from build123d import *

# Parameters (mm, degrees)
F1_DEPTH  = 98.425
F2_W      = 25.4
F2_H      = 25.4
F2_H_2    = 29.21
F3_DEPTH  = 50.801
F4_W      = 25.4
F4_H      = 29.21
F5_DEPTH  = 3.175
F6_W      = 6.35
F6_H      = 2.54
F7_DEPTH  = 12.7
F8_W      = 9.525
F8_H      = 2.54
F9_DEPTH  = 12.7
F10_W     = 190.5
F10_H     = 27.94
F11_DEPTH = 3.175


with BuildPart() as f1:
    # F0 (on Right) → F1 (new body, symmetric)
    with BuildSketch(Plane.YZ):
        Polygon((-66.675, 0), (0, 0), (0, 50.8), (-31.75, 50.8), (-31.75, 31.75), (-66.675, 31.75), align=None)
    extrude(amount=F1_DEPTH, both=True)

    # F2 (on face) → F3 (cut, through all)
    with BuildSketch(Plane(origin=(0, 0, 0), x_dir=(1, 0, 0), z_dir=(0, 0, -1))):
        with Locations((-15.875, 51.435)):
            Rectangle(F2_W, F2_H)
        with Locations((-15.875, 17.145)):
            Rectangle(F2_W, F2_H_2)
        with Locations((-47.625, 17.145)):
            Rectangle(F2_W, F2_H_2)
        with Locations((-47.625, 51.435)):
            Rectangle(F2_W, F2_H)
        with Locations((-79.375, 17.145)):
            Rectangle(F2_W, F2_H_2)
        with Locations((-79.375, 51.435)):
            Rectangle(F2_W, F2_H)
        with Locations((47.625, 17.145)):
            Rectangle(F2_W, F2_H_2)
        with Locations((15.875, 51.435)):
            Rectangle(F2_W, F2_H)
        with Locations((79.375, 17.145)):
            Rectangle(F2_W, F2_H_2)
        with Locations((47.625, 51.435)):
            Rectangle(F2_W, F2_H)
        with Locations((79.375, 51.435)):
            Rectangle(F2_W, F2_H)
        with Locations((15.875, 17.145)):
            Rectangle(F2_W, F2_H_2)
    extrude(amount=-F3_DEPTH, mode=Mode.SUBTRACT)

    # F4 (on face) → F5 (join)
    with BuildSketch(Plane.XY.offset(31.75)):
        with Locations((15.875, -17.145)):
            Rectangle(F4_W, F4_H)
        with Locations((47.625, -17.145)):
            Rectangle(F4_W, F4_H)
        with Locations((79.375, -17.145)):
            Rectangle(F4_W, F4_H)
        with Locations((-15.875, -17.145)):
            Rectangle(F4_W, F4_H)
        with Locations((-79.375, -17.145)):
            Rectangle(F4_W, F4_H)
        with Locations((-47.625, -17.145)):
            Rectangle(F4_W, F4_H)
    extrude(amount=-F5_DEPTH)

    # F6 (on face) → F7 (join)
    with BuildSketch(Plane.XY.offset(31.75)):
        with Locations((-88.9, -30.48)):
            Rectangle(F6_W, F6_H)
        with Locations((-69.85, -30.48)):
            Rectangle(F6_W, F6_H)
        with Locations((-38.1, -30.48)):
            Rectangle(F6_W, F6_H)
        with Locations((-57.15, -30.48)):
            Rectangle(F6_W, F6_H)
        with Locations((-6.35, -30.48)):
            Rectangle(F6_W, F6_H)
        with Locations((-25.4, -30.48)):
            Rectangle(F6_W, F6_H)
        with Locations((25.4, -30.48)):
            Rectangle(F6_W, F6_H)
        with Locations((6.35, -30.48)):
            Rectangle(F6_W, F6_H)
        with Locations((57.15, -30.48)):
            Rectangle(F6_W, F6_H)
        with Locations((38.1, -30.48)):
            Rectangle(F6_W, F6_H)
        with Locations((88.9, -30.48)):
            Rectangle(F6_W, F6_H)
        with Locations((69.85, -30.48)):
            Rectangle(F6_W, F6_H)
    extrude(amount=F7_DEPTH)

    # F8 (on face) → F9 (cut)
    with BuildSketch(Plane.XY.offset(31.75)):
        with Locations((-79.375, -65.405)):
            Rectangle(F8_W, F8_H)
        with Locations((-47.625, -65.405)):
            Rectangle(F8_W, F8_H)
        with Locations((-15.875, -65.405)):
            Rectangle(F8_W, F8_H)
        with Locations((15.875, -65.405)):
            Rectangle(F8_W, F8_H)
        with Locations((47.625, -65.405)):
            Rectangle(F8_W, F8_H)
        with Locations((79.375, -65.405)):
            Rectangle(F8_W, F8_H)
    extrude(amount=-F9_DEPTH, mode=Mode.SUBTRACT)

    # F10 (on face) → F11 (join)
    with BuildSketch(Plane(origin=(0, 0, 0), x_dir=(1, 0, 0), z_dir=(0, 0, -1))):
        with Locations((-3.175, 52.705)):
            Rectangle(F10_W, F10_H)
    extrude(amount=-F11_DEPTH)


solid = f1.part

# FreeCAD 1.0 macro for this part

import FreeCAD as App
import Part
import Sketcher
Q = App.Units.Quantity


def add_polygon(sketch, points):
    """Adds a closed chain of lines whose ends are joined by coincident constraints."""
    first, n = sketch.GeometryCount, len(points)
    for a, b in zip(points, points[1:] + points[:1]):
        sketch.addGeometry(Part.LineSegment(App.Vector(*a, 0), App.Vector(*b, 0)), False)
    for i in range(n):
        sketch.addConstraint(Sketcher.Constraint("Coincident", first + i, 2, first + (i + 1) % n, 1))

doc = App.newDocument("Part")
body = doc.addObject("PartDesign::Body", "Body")

# Sketch on YZ plane
sketch1 = doc.addObject("Sketcher::SketchObject", "Sketch")
body.addObject(sketch1)
sketch1.AttachmentSupport = (doc.YZ_Plane, [""])
sketch1.MapMode = "FlatFace"
add_polygon(sketch1, [(-67, 0), (0, 0), (0, 51), (-32, 51), (-32, 32), (-67, 32)])  # lines 0-5
sketch1.addConstraint(Sketcher.Constraint("Horizontal", 0))
sketch1.addConstraint(Sketcher.Constraint("Vertical", 1))
sketch1.addConstraint(Sketcher.Constraint("Horizontal", 2))
sketch1.addConstraint(Sketcher.Constraint("Vertical", 3))
sketch1.addConstraint(Sketcher.Constraint("Horizontal", 4))
sketch1.addConstraint(Sketcher.Constraint("Vertical", 5))
sketch1.addConstraint(Sketcher.Constraint("Coincident", 0, 2, -1, 1))
sketch1.addConstraint(Sketcher.Constraint("Equal", 2, 5))
sketch1.addConstraint(Sketcher.Constraint("DistanceY", 1, 1, 1, 2, Q("2 in")))
sketch1.addConstraint(Sketcher.Constraint("DistanceX", 2, 2, 2, 1, Q("1.25 in")))
sketch1.addConstraint(Sketcher.Constraint("DistanceX", 0, 1, 0, 2, Q("2.625 in")))
pad1 = doc.addObject("PartDesign::Pad", "Pad")
body.addObject(pad1)
pad1.Profile = sketch1
pad1.Length = Q("7.75 in")
pad1.Midplane = True

# Sketch on XY plane
sketch2 = doc.addObject("Sketcher::SketchObject", "Sketch001")
body.addObject(sketch2)
sketch2.AttachmentSupport = (doc.XY_Plane, [""])
sketch2.MapMode = "FlatFace"
add_polygon(sketch2, [(-29, -64), (-29, -39), (-3, -39), (-3, -64)])  # lines 0-3
add_polygon(sketch2, [(-29, -32), (-29, -3), (-3, -3), (-3, -32)])  # lines 4-7
add_polygon(sketch2, [(-60, -32), (-60, -3), (-35, -3), (-35, -32)])  # lines 8-11
add_polygon(sketch2, [(-60, -64), (-60, -39), (-35, -39), (-35, -64)])  # lines 12-15
add_polygon(sketch2, [(-92, -32), (-92, -3), (-67, -3), (-67, -32)])  # lines 16-19
add_polygon(sketch2, [(-92, -64), (-92, -39), (-67, -39), (-67, -64)])  # lines 20-23
add_polygon(sketch2, [(35, -32), (35, -3), (60, -3), (60, -32)])  # lines 24-27
add_polygon(sketch2, [(3, -64), (3, -39), (29, -39), (29, -64)])  # lines 28-31
add_polygon(sketch2, [(67, -32), (67, -3), (92, -3), (92, -32)])  # lines 32-35
add_polygon(sketch2, [(35, -64), (35, -39), (60, -39), (60, -64)])  # lines 36-39
add_polygon(sketch2, [(67, -64), (67, -39), (92, -39), (92, -64)])  # lines 40-43
add_polygon(sketch2, [(3, -32), (3, -3), (29, -3), (29, -32)])  # lines 44-47
sketch2.addConstraint(Sketcher.Constraint("Vertical", 0))
sketch2.addConstraint(Sketcher.Constraint("Horizontal", 1))
sketch2.addConstraint(Sketcher.Constraint("Vertical", 2))
sketch2.addConstraint(Sketcher.Constraint("Horizontal", 3))
sketch2.addConstraint(Sketcher.Constraint("Vertical", 4))
sketch2.addConstraint(Sketcher.Constraint("Horizontal", 5))
sketch2.addConstraint(Sketcher.Constraint("Vertical", 6))
sketch2.addConstraint(Sketcher.Constraint("Horizontal", 7))
sketch2.addConstraint(Sketcher.Constraint("Vertical", 8))
sketch2.addConstraint(Sketcher.Constraint("Horizontal", 9))
sketch2.addConstraint(Sketcher.Constraint("Vertical", 10))
sketch2.addConstraint(Sketcher.Constraint("Horizontal", 11))
sketch2.addConstraint(Sketcher.Constraint("Vertical", 12))
sketch2.addConstraint(Sketcher.Constraint("Horizontal", 13))
sketch2.addConstraint(Sketcher.Constraint("Vertical", 14))
sketch2.addConstraint(Sketcher.Constraint("Horizontal", 15))
sketch2.addConstraint(Sketcher.Constraint("Vertical", 16))
sketch2.addConstraint(Sketcher.Constraint("Horizontal", 17))
sketch2.addConstraint(Sketcher.Constraint("Vertical", 18))
sketch2.addConstraint(Sketcher.Constraint("Horizontal", 19))
sketch2.addConstraint(Sketcher.Constraint("Vertical", 20))
sketch2.addConstraint(Sketcher.Constraint("Horizontal", 21))
sketch2.addConstraint(Sketcher.Constraint("Vertical", 22))
sketch2.addConstraint(Sketcher.Constraint("Horizontal", 23))
sketch2.addConstraint(Sketcher.Constraint("Vertical", 24))
sketch2.addConstraint(Sketcher.Constraint("Horizontal", 25))
sketch2.addConstraint(Sketcher.Constraint("Vertical", 26))
sketch2.addConstraint(Sketcher.Constraint("Horizontal", 27))
sketch2.addConstraint(Sketcher.Constraint("Vertical", 28))
sketch2.addConstraint(Sketcher.Constraint("Horizontal", 29))
sketch2.addConstraint(Sketcher.Constraint("Vertical", 30))
sketch2.addConstraint(Sketcher.Constraint("Horizontal", 31))
sketch2.addConstraint(Sketcher.Constraint("Vertical", 32))
sketch2.addConstraint(Sketcher.Constraint("Horizontal", 33))
sketch2.addConstraint(Sketcher.Constraint("Vertical", 34))
sketch2.addConstraint(Sketcher.Constraint("Horizontal", 35))
sketch2.addConstraint(Sketcher.Constraint("Vertical", 36))
sketch2.addConstraint(Sketcher.Constraint("Horizontal", 37))
sketch2.addConstraint(Sketcher.Constraint("Vertical", 38))
sketch2.addConstraint(Sketcher.Constraint("Horizontal", 39))
sketch2.addConstraint(Sketcher.Constraint("Vertical", 40))
sketch2.addConstraint(Sketcher.Constraint("Horizontal", 41))
sketch2.addConstraint(Sketcher.Constraint("Vertical", 42))
sketch2.addConstraint(Sketcher.Constraint("Horizontal", 43))
sketch2.addConstraint(Sketcher.Constraint("Vertical", 44))
sketch2.addConstraint(Sketcher.Constraint("Horizontal", 45))
sketch2.addConstraint(Sketcher.Constraint("Vertical", 46))
sketch2.addConstraint(Sketcher.Constraint("Horizontal", 47))
sketch2.addConstraint(Sketcher.Constraint("Symmetric", 9, 2, 24, 2, -2))
sketch2.addConstraint(Sketcher.Constraint("Symmetric", 11, 2, 26, 2, -2))
sketch2.addConstraint(Sketcher.Constraint("Symmetric", 1, 2, 28, 2, -2))
sketch2.addConstraint(Sketcher.Constraint("Symmetric", 3, 2, 30, 2, -2))
sketch2.addConstraint(Sketcher.Constraint("Symmetric", 17, 2, 32, 2, -2))
sketch2.addConstraint(Sketcher.Constraint("Symmetric", 19, 2, 34, 2, -2))
sketch2.addConstraint(Sketcher.Constraint("Symmetric", 13, 2, 36, 2, -2))
sketch2.addConstraint(Sketcher.Constraint("Symmetric", 15, 2, 38, 2, -2))
sketch2.addConstraint(Sketcher.Constraint("Symmetric", 21, 2, 40, 2, -2))
sketch2.addConstraint(Sketcher.Constraint("Symmetric", 23, 2, 42, 2, -2))
sketch2.addConstraint(Sketcher.Constraint("Symmetric", 5, 2, 44, 2, -2))
sketch2.addConstraint(Sketcher.Constraint("Symmetric", 7, 2, 46, 2, -2))
sketch2.addConstraint(Sketcher.Constraint("Horizontal", 5, 2, 8, 2))
sketch2.addConstraint(Sketcher.Constraint("Horizontal", 7, 2, 10, 2))
sketch2.addConstraint(Sketcher.Constraint("Horizontal", 1, 2, 12, 2))
sketch2.addConstraint(Sketcher.Constraint("Horizontal", 3, 2, 14, 2))
sketch2.addConstraint(Sketcher.Constraint("Horizontal", 9, 2, 16, 2))
sketch2.addConstraint(Sketcher.Constraint("Horizontal", 11, 2, 18, 2))
sketch2.addConstraint(Sketcher.Constraint("Horizontal", 13, 2, 20, 2))
sketch2.addConstraint(Sketcher.Constraint("Horizontal", 15, 2, 22, 2))
sketch2.addConstraint(Sketcher.Constraint("Vertical", 3, 2, 4, 2))
sketch2.addConstraint(Sketcher.Constraint("Vertical", 2, 2, 5, 2))
sketch2.addConstraint(Sketcher.Constraint("Vertical", 11, 2, 12, 2))
sketch2.addConstraint(Sketcher.Constraint("Vertical", 10, 2, 13, 2))
sketch2.addConstraint(Sketcher.Constraint("Vertical", 19, 2, 20, 2))
sketch2.addConstraint(Sketcher.Constraint("Vertical", 18, 2, 21, 2))
sketch2.addConstraint(Sketcher.Constraint("Equal", 7, 9))
sketch2.addConstraint(Sketcher.Constraint("Equal", 15, 17))
sketch2.addConstraint(Sketcher.Constraint("Equal", 47, 0))
sketch2.addConstraint(Sketcher.Constraint("DistanceX", 1, 1, 1, 2, Q("1 in")))
sketch2.addConstraint(Sketcher.Constraint("DistanceY", 4, 1, 4, 2, Q("1.15 in")))
sketch2.addConstraint(Sketcher.Constraint("DistanceY", 4, 2, -1, 1, Q("0.1 in")))
sketch2.addConstraint(Sketcher.Constraint("DistanceX", 16, 2, 4, 2, Q("2.5 in")))
sketch2.addConstraint(Sketcher.Constraint("DistanceX", 5, 2, 24, 2, Q("1.5 in")))
sketch2.addConstraint(Sketcher.Constraint("DistanceX", 8, 2, 4, 2, Q("1.25 in")))
sketch2.addConstraint(Sketcher.Constraint("DistanceY", 0, 2, -1, 1, Q("1.525 in")))
pocket1 = doc.addObject("PartDesign::Pocket", "Pocket")
body.addObject(pocket1)
pocket1.Profile = sketch2
pocket1.Type = "ThroughAll"
pocket1.Reversed = True

# Sketch on XY plane
sketch3 = doc.addObject("Sketcher::SketchObject", "Sketch002")
body.addObject(sketch3)
sketch3.AttachmentSupport = (doc.XY_Plane, [""])
sketch3.MapMode = "FlatFace"
sketch3.AttachmentOffset = App.Placement(App.Vector(0, 0, 1.25 * 25.4), App.Rotation())
add_polygon(sketch3, [(3, -3), (3, -32), (29, -32), (29, -3)])  # lines 0-3
add_polygon(sketch3, [(35, -3), (35, -32), (60, -32), (60, -3)])  # lines 4-7
add_polygon(sketch3, [(67, -3), (67, -32), (92, -32), (92, -3)])  # lines 8-11
add_polygon(sketch3, [(-29, -3), (-29, -32), (-3, -32), (-3, -3)])  # lines 12-15
add_polygon(sketch3, [(-92, -3), (-92, -32), (-67, -32), (-67, -3)])  # lines 16-19
add_polygon(sketch3, [(-60, -3), (-60, -32), (-35, -32), (-35, -3)])  # lines 20-23
sketch3.addConstraint(Sketcher.Constraint("Vertical", 0))
sketch3.addConstraint(Sketcher.Constraint("Horizontal", 1))
sketch3.addConstraint(Sketcher.Constraint("Vertical", 2))
sketch3.addConstraint(Sketcher.Constraint("Horizontal", 3))
sketch3.addConstraint(Sketcher.Constraint("Vertical", 4))
sketch3.addConstraint(Sketcher.Constraint("Horizontal", 5))
sketch3.addConstraint(Sketcher.Constraint("Vertical", 6))
sketch3.addConstraint(Sketcher.Constraint("Horizontal", 7))
sketch3.addConstraint(Sketcher.Constraint("Vertical", 8))
sketch3.addConstraint(Sketcher.Constraint("Horizontal", 9))
sketch3.addConstraint(Sketcher.Constraint("Vertical", 10))
sketch3.addConstraint(Sketcher.Constraint("Horizontal", 11))
sketch3.addConstraint(Sketcher.Constraint("Vertical", 12))
sketch3.addConstraint(Sketcher.Constraint("Horizontal", 13))
sketch3.addConstraint(Sketcher.Constraint("Vertical", 14))
sketch3.addConstraint(Sketcher.Constraint("Horizontal", 15))
sketch3.addConstraint(Sketcher.Constraint("Vertical", 16))
sketch3.addConstraint(Sketcher.Constraint("Horizontal", 17))
sketch3.addConstraint(Sketcher.Constraint("Vertical", 18))
sketch3.addConstraint(Sketcher.Constraint("Horizontal", 19))
sketch3.addConstraint(Sketcher.Constraint("Vertical", 20))
sketch3.addConstraint(Sketcher.Constraint("Horizontal", 21))
sketch3.addConstraint(Sketcher.Constraint("Vertical", 22))
sketch3.addConstraint(Sketcher.Constraint("Horizontal", 23))
sketch3.addConstraint(Sketcher.Constraint("Symmetric", 1, 2, 12, 2, -2))
sketch3.addConstraint(Sketcher.Constraint("Symmetric", 3, 2, 14, 2, -2))
sketch3.addConstraint(Sketcher.Constraint("Symmetric", 9, 2, 16, 2, -2))
sketch3.addConstraint(Sketcher.Constraint("Symmetric", 11, 2, 18, 2, -2))
sketch3.addConstraint(Sketcher.Constraint("Symmetric", 5, 2, 20, 2, -2))
sketch3.addConstraint(Sketcher.Constraint("Symmetric", 7, 2, 22, 2, -2))
sketch3.addConstraint(Sketcher.Constraint("Horizontal", 1, 2, 4, 2))
sketch3.addConstraint(Sketcher.Constraint("Horizontal", 3, 2, 6, 2))
sketch3.addConstraint(Sketcher.Constraint("Horizontal", 5, 2, 8, 2))
sketch3.addConstraint(Sketcher.Constraint("Horizontal", 7, 2, 10, 2))
sketch3.addConstraint(Sketcher.Constraint("Equal", 3, 5))
sketch3.addConstraint(Sketcher.Constraint("Equal", 7, 9))
sketch3.addConstraint(Sketcher.Constraint("DistanceX", 1, 1, 1, 2, Q("1 in")))
sketch3.addConstraint(Sketcher.Constraint("DistanceY", 0, 2, 0, 1, Q("1.15 in")))
sketch3.addConstraint(Sketcher.Constraint("DistanceY", 2, 2, -1, 1, Q("0.1 in")))
sketch3.addConstraint(Sketcher.Constraint("DistanceX", 1, 2, 8, 2, Q("1.5 in")))
sketch3.addConstraint(Sketcher.Constraint("DistanceX", 12, 2, 4, 2, Q("2.5 in")))
sketch3.addConstraint(Sketcher.Constraint("DistanceX", 1, 2, 4, 2, Q("0.25 in")))
pad2 = doc.addObject("PartDesign::Pad", "Pad001")
body.addObject(pad2)
pad2.Profile = sketch3
pad2.Length = Q("0.125 in")
pad2.Reversed = True

# Sketch on XY plane
sketch4 = doc.addObject("Sketcher::SketchObject", "Sketch003")
body.addObject(sketch4)
sketch4.AttachmentSupport = (doc.XY_Plane, [""])
sketch4.MapMode = "FlatFace"
sketch4.AttachmentOffset = App.Placement(App.Vector(0, 0, 1.25 * 25.4), App.Rotation())
add_polygon(sketch4, [(-92.1, -29.2), (-92.1, -31.8), (-85.7, -31.8), (-85.7, -29.2)])  # lines 0-3
add_polygon(sketch4, [(-73, -29.2), (-73, -31.8), (-66.7, -31.8), (-66.7, -29.2)])  # lines 4-7
add_polygon(sketch4, [(-41.3, -29.2), (-41.3, -31.8), (-34.9, -31.8), (-34.9, -29.2)])  # lines 8-11
add_polygon(sketch4, [(-60.3, -29.2), (-60.3, -31.8), (-54, -31.8), (-54, -29.2)])  # lines 12-15
add_polygon(sketch4, [(-9.5, -29.2), (-9.5, -31.8), (-3.2, -31.8), (-3.2, -29.2)])  # lines 16-19
add_polygon(sketch4, [(-28.6, -29.2), (-28.6, -31.8), (-22.2, -31.8), (-22.2, -29.2)])  # lines 20-23
add_polygon(sketch4, [(22.2, -29.2), (22.2, -31.8), (28.6, -31.8), (28.6, -29.2)])  # lines 24-27
add_polygon(sketch4, [(3.2, -29.2), (3.2, -31.8), (9.5, -31.8), (9.5, -29.2)])  # lines 28-31
add_polygon(sketch4, [(54, -29.2), (54, -31.8), (60.3, -31.8), (60.3, -29.2)])  # lines 32-35
add_polygon(sketch4, [(34.9, -29.2), (34.9, -31.8), (41.3, -31.8), (41.3, -29.2)])  # lines 36-39
add_polygon(sketch4, [(85.7, -29.2), (85.7, -31.8), (92.1, -31.8), (92.1, -29.2)])  # lines 40-43
add_polygon(sketch4, [(66.7, -29.2), (66.7, -31.8), (73, -31.8), (73, -29.2)])  # lines 44-47
sketch4.addConstraint(Sketcher.Constraint("Vertical", 0))
sketch4.addConstraint(Sketcher.Constraint("Horizontal", 1))
sketch4.addConstraint(Sketcher.Constraint("Vertical", 2))
sketch4.addConstraint(Sketcher.Constraint("Horizontal", 3))
sketch4.addConstraint(Sketcher.Constraint("Vertical", 4))
sketch4.addConstraint(Sketcher.Constraint("Horizontal", 5))
sketch4.addConstraint(Sketcher.Constraint("Vertical", 6))
sketch4.addConstraint(Sketcher.Constraint("Horizontal", 7))
sketch4.addConstraint(Sketcher.Constraint("Vertical", 8))
sketch4.addConstraint(Sketcher.Constraint("Horizontal", 9))
sketch4.addConstraint(Sketcher.Constraint("Vertical", 10))
sketch4.addConstraint(Sketcher.Constraint("Horizontal", 11))
sketch4.addConstraint(Sketcher.Constraint("Vertical", 12))
sketch4.addConstraint(Sketcher.Constraint("Horizontal", 13))
sketch4.addConstraint(Sketcher.Constraint("Vertical", 14))
sketch4.addConstraint(Sketcher.Constraint("Horizontal", 15))
sketch4.addConstraint(Sketcher.Constraint("Vertical", 16))
sketch4.addConstraint(Sketcher.Constraint("Horizontal", 17))
sketch4.addConstraint(Sketcher.Constraint("Vertical", 18))
sketch4.addConstraint(Sketcher.Constraint("Horizontal", 19))
sketch4.addConstraint(Sketcher.Constraint("Vertical", 20))
sketch4.addConstraint(Sketcher.Constraint("Horizontal", 21))
sketch4.addConstraint(Sketcher.Constraint("Vertical", 22))
sketch4.addConstraint(Sketcher.Constraint("Horizontal", 23))
sketch4.addConstraint(Sketcher.Constraint("Vertical", 24))
sketch4.addConstraint(Sketcher.Constraint("Horizontal", 25))
sketch4.addConstraint(Sketcher.Constraint("Vertical", 26))
sketch4.addConstraint(Sketcher.Constraint("Horizontal", 27))
sketch4.addConstraint(Sketcher.Constraint("Vertical", 28))
sketch4.addConstraint(Sketcher.Constraint("Horizontal", 29))
sketch4.addConstraint(Sketcher.Constraint("Vertical", 30))
sketch4.addConstraint(Sketcher.Constraint("Horizontal", 31))
sketch4.addConstraint(Sketcher.Constraint("Vertical", 32))
sketch4.addConstraint(Sketcher.Constraint("Horizontal", 33))
sketch4.addConstraint(Sketcher.Constraint("Vertical", 34))
sketch4.addConstraint(Sketcher.Constraint("Horizontal", 35))
sketch4.addConstraint(Sketcher.Constraint("Vertical", 36))
sketch4.addConstraint(Sketcher.Constraint("Horizontal", 37))
sketch4.addConstraint(Sketcher.Constraint("Vertical", 38))
sketch4.addConstraint(Sketcher.Constraint("Horizontal", 39))
sketch4.addConstraint(Sketcher.Constraint("Vertical", 40))
sketch4.addConstraint(Sketcher.Constraint("Horizontal", 41))
sketch4.addConstraint(Sketcher.Constraint("Vertical", 42))
sketch4.addConstraint(Sketcher.Constraint("Horizontal", 43))
sketch4.addConstraint(Sketcher.Constraint("Vertical", 44))
sketch4.addConstraint(Sketcher.Constraint("Horizontal", 45))
sketch4.addConstraint(Sketcher.Constraint("Vertical", 46))
sketch4.addConstraint(Sketcher.Constraint("Horizontal", 47))
sketch4.addConstraint(Sketcher.Constraint("Symmetric", 21, 2, 24, 2, -2))
sketch4.addConstraint(Sketcher.Constraint("Symmetric", 23, 2, 26, 2, -2))
sketch4.addConstraint(Sketcher.Constraint("Symmetric", 17, 2, 28, 2, -2))
sketch4.addConstraint(Sketcher.Constraint("Symmetric", 19, 2, 30, 2, -2))
sketch4.addConstraint(Sketcher.Constraint("Symmetric", 13, 2, 32, 2, -2))
sketch4.addConstraint(Sketcher.Constraint("Symmetric", 15, 2, 34, 2, -2))
sketch4.addConstraint(Sketcher.Constraint("Symmetric", 9, 2, 36, 2, -2))
sketch4.addConstraint(Sketcher.Constraint("Symmetric", 11, 2, 38, 2, -2))
sketch4.addConstraint(Sketcher.Constraint("Symmetric", 1, 2, 40, 2, -2))
sketch4.addConstraint(Sketcher.Constraint("Symmetric", 3, 2, 42, 2, -2))
sketch4.addConstraint(Sketcher.Constraint("Symmetric", 5, 2, 44, 2, -2))
sketch4.addConstraint(Sketcher.Constraint("Symmetric", 7, 2, 46, 2, -2))
sketch4.addConstraint(Sketcher.Constraint("Horizontal", 1, 2, 4, 2))
sketch4.addConstraint(Sketcher.Constraint("Horizontal", 3, 2, 6, 2))
sketch4.addConstraint(Sketcher.Constraint("Horizontal", 5, 2, 8, 2))
sketch4.addConstraint(Sketcher.Constraint("Horizontal", 7, 2, 10, 2))
sketch4.addConstraint(Sketcher.Constraint("Horizontal", 9, 2, 12, 2))
sketch4.addConstraint(Sketcher.Constraint("Horizontal", 11, 2, 14, 2))
sketch4.addConstraint(Sketcher.Constraint("Horizontal", 13, 2, 16, 2))
sketch4.addConstraint(Sketcher.Constraint("Horizontal", 15, 2, 18, 2))
sketch4.addConstraint(Sketcher.Constraint("Horizontal", 17, 2, 20, 2))
sketch4.addConstraint(Sketcher.Constraint("Horizontal", 19, 2, 22, 2))
sketch4.addConstraint(Sketcher.Constraint("Equal", 3, 5))
sketch4.addConstraint(Sketcher.Constraint("Equal", 7, 9))
sketch4.addConstraint(Sketcher.Constraint("Equal", 11, 13))
sketch4.addConstraint(Sketcher.Constraint("Equal", 15, 17))
sketch4.addConstraint(Sketcher.Constraint("Equal", 19, 21))
sketch4.addConstraint(Sketcher.Constraint("DistanceY", 0, 2, 0, 1, Q("0.1 in")))
sketch4.addConstraint(Sketcher.Constraint("DistanceX", 0, 2, 5, 2, Q("1 in")))
sketch4.addConstraint(Sketcher.Constraint("DistanceX", 5, 2, 8, 2, Q("1 in")))
sketch4.addConstraint(Sketcher.Constraint("DistanceX", 9, 2, 16, 2, Q("1 in")))
sketch4.addConstraint(Sketcher.Constraint("DistanceX", 17, 2, 24, 2, Q("1 in")))
sketch4.addConstraint(Sketcher.Constraint("DistanceX", 25, 2, 32, 2, Q("1 in")))
sketch4.addConstraint(Sketcher.Constraint("DistanceX", 33, 2, 40, 2, Q("1 in")))
sketch4.addConstraint(Sketcher.Constraint("DistanceX", 1, 1, 1, 2, Q("0.25 in")))
sketch4.addConstraint(Sketcher.Constraint("DistanceY", 0, 2, -1, 1, Q("1.25 in")))
pad3 = doc.addObject("PartDesign::Pad", "Pad002")
body.addObject(pad3)
pad3.Profile = sketch4
pad3.Length = Q("0.5 in")

# Sketch on XY plane
sketch5 = doc.addObject("Sketcher::SketchObject", "Sketch004")
body.addObject(sketch5)
sketch5.AttachmentSupport = (doc.XY_Plane, [""])
sketch5.MapMode = "FlatFace"
sketch5.AttachmentOffset = App.Placement(App.Vector(0, 0, 1.25 * 25.4), App.Rotation())
add_polygon(sketch5, [(-84.1, -64.1), (-84.1, -66.7), (-74.6, -66.7), (-74.6, -64.1)])  # lines 0-3
add_polygon(sketch5, [(-52.4, -64.1), (-52.4, -66.7), (-42.9, -66.7), (-42.9, -64.1)])  # lines 4-7
add_polygon(sketch5, [(-20.6, -64.1), (-20.6, -66.7), (-11.1, -66.7), (-11.1, -64.1)])  # lines 8-11
add_polygon(sketch5, [(11.1, -64.1), (11.1, -66.7), (20.6, -66.7), (20.6, -64.1)])  # lines 12-15
add_polygon(sketch5, [(42.9, -64.1), (42.9, -66.7), (52.4, -66.7), (52.4, -64.1)])  # lines 16-19
add_polygon(sketch5, [(74.6, -64.1), (74.6, -66.7), (84.1, -66.7), (84.1, -64.1)])  # lines 20-23
sketch5.addConstraint(Sketcher.Constraint("Vertical", 0))
sketch5.addConstraint(Sketcher.Constraint("Horizontal", 1))
sketch5.addConstraint(Sketcher.Constraint("Vertical", 2))
sketch5.addConstraint(Sketcher.Constraint("Horizontal", 3))
sketch5.addConstraint(Sketcher.Constraint("Vertical", 4))
sketch5.addConstraint(Sketcher.Constraint("Horizontal", 5))
sketch5.addConstraint(Sketcher.Constraint("Vertical", 6))
sketch5.addConstraint(Sketcher.Constraint("Horizontal", 7))
sketch5.addConstraint(Sketcher.Constraint("Vertical", 8))
sketch5.addConstraint(Sketcher.Constraint("Horizontal", 9))
sketch5.addConstraint(Sketcher.Constraint("Vertical", 10))
sketch5.addConstraint(Sketcher.Constraint("Horizontal", 11))
sketch5.addConstraint(Sketcher.Constraint("Vertical", 12))
sketch5.addConstraint(Sketcher.Constraint("Horizontal", 13))
sketch5.addConstraint(Sketcher.Constraint("Vertical", 14))
sketch5.addConstraint(Sketcher.Constraint("Horizontal", 15))
sketch5.addConstraint(Sketcher.Constraint("Vertical", 16))
sketch5.addConstraint(Sketcher.Constraint("Horizontal", 17))
sketch5.addConstraint(Sketcher.Constraint("Vertical", 18))
sketch5.addConstraint(Sketcher.Constraint("Horizontal", 19))
sketch5.addConstraint(Sketcher.Constraint("Vertical", 20))
sketch5.addConstraint(Sketcher.Constraint("Horizontal", 21))
sketch5.addConstraint(Sketcher.Constraint("Vertical", 22))
sketch5.addConstraint(Sketcher.Constraint("Horizontal", 23))
sketch5.addConstraint(Sketcher.Constraint("Symmetric", 9, 2, 12, 2, -2))
sketch5.addConstraint(Sketcher.Constraint("Symmetric", 11, 2, 14, 2, -2))
sketch5.addConstraint(Sketcher.Constraint("Symmetric", 5, 2, 16, 2, -2))
sketch5.addConstraint(Sketcher.Constraint("Symmetric", 7, 2, 18, 2, -2))
sketch5.addConstraint(Sketcher.Constraint("Symmetric", 1, 2, 20, 2, -2))
sketch5.addConstraint(Sketcher.Constraint("Symmetric", 3, 2, 22, 2, -2))
sketch5.addConstraint(Sketcher.Constraint("Horizontal", 1, 2, 4, 2))
sketch5.addConstraint(Sketcher.Constraint("Horizontal", 3, 2, 6, 2))
sketch5.addConstraint(Sketcher.Constraint("Horizontal", 5, 2, 8, 2))
sketch5.addConstraint(Sketcher.Constraint("Horizontal", 7, 2, 10, 2))
sketch5.addConstraint(Sketcher.Constraint("Equal", 3, 5))
sketch5.addConstraint(Sketcher.Constraint("Equal", 7, 9))
sketch5.addConstraint(Sketcher.Constraint("DistanceY", 0, 2, 0, 1, Q("0.1 in")))
sketch5.addConstraint(Sketcher.Constraint("DistanceX", 1, 1, 1, 2, Q("0.375 in")))
sketch5.addConstraint(Sketcher.Constraint("DistanceX", 0, 2, 4, 2, Q("1.25 in")))
sketch5.addConstraint(Sketcher.Constraint("DistanceX", 4, 2, 8, 2, Q("1.25 in")))
sketch5.addConstraint(Sketcher.Constraint("DistanceX", 8, 2, 12, 2, Q("1.25 in")))
sketch5.addConstraint(Sketcher.Constraint("DistanceY", 0, 2, -1, 1, Q("2.625 in")))
pocket2 = doc.addObject("PartDesign::Pocket", "Pocket001")
body.addObject(pocket2)
pocket2.Profile = sketch5
pocket2.Length = Q("0.5 in")

# Sketch on XY plane
sketch6 = doc.addObject("Sketcher::SketchObject", "Sketch005")
body.addObject(sketch6)
sketch6.AttachmentSupport = (doc.XY_Plane, [""])
sketch6.MapMode = "FlatFace"
add_polygon(sketch6, [(-98, -67), (-98, -39), (92, -39), (92, -67)])  # lines 0-3
sketch6.addConstraint(Sketcher.Constraint("Vertical", 0))
sketch6.addConstraint(Sketcher.Constraint("Horizontal", 1))
sketch6.addConstraint(Sketcher.Constraint("Vertical", 2))
sketch6.addConstraint(Sketcher.Constraint("Horizontal", 3))
sketch6.addConstraint(Sketcher.Constraint("DistanceX", 1, 1, 1, 2, Q("7.5 in")))
sketch6.addConstraint(Sketcher.Constraint("DistanceY", 0, 1, 0, 2, Q("1.1 in")))
sketch6.addConstraint(Sketcher.Constraint("DistanceX", 0, 2, -1, 1, Q("3.875 in")))
sketch6.addConstraint(Sketcher.Constraint("DistanceY", 0, 2, -1, 1, Q("1.525 in")))
pad4 = doc.addObject("PartDesign::Pad", "Pad003")
body.addObject(pad4)
pad4.Profile = sketch6
pad4.Length = Q("0.125 in")

doc.recompute()
